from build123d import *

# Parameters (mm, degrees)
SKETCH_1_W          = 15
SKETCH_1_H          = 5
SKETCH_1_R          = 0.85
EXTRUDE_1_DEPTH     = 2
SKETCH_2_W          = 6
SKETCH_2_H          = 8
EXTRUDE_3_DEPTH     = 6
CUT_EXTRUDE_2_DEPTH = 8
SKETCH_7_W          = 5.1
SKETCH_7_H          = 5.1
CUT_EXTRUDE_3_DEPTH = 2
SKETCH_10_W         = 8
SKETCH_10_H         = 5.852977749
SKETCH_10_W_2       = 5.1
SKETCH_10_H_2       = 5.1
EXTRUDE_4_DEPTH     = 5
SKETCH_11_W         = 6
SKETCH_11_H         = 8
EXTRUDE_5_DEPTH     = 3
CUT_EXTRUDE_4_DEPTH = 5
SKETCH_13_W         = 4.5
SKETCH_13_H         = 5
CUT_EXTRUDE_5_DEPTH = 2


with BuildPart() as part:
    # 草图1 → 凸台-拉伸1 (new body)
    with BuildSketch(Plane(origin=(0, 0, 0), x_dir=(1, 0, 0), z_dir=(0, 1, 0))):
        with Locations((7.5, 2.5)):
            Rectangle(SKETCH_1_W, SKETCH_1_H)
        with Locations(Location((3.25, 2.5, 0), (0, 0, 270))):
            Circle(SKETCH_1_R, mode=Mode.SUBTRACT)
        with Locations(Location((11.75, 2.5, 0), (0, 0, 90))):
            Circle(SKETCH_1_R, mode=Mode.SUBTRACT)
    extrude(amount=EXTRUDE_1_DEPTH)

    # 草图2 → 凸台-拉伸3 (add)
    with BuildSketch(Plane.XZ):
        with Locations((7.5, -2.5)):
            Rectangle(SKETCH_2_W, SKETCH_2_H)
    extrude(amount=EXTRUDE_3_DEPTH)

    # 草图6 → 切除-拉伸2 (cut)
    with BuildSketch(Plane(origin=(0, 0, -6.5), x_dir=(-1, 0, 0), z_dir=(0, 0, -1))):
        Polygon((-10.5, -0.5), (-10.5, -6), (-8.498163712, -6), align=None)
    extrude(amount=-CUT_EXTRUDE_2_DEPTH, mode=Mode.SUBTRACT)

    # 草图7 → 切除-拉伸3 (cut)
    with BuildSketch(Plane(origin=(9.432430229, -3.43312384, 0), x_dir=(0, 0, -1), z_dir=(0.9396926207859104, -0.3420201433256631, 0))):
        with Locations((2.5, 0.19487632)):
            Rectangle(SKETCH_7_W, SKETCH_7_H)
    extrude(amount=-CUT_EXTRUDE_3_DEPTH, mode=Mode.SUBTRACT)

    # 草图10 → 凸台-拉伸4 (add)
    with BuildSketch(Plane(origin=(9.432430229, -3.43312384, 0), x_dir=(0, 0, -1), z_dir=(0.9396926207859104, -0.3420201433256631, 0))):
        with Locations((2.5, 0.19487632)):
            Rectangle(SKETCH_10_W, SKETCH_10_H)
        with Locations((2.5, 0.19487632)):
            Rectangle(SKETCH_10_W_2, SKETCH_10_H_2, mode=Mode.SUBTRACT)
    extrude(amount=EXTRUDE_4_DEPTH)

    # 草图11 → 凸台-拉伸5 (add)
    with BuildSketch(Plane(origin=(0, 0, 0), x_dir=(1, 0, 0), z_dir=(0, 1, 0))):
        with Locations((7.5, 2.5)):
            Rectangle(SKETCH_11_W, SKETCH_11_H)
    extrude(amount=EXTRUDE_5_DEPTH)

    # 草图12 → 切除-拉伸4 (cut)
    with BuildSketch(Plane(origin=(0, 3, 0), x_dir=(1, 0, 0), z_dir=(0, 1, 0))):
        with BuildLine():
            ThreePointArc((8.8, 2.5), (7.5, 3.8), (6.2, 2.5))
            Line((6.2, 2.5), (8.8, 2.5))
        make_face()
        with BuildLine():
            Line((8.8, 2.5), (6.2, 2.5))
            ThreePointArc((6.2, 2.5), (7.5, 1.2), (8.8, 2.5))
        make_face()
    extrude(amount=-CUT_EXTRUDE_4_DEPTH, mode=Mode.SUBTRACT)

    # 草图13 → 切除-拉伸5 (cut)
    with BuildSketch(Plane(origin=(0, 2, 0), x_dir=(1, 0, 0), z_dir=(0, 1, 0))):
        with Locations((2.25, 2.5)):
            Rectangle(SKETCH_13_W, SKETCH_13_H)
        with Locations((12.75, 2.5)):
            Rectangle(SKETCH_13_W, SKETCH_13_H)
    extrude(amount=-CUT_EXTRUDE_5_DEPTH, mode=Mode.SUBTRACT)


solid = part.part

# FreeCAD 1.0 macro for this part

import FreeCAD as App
import Part
import Sketcher
from FreeCAD import Vector
Q = App.Units.Quantity


def add_polygon(sketch, points):
    """Adds a closed chain of lines whose ends are joined by coincident constraints."""
    first, n = sketch.GeometryCount, len(points)
    for a, b in zip(points, points[1:] + points[:1]):
        sketch.addGeometry(Part.LineSegment(App.Vector(*a, 0), App.Vector(*b, 0)), False)
    for i in range(n):
        sketch.addConstraint(Sketcher.Constraint("Coincident", first + i, 2, first + (i + 1) % n, 1))

doc = App.newDocument("Part")
params = doc.addObject("Spreadsheet::Sheet", "Params")
for row, (alias, value) in enumerate([
    ("sketch1_diameter", "1.7 mm"),
    ("sketch1_width", "15 mm"),
    ("sketch1_height", "5 mm"),
    ("pad1_length", "2 mm"),
    ("sketch2_width", "6 mm"),
    ("sketch2_height", "8 mm"),
    ("pad2_length", "6 mm"),
    ("sketch3_height", "5.5 mm"),
    ("pocket1_length", "8 mm"),
    ("sketch4_width", "5.1 mm"),
    ("pocket2_length", "2 mm"),
    ("sketch5_width", "8 mm"),
    ("sketch5_width2", "5.1 mm"),
    ("pad3_length", "5 mm"),
    ("sketch6_width", "6 mm"),
    ("sketch6_height", "8 mm"),
    ("pad4_length", "3 mm"),
    ("sketch7_diameter", "2.6 mm"),
    ("pocket3_length", "5 mm"),
    ("sketch8_height", "5 mm"),
    ("sketch8_width", "4.5 mm"),
    ("pocket4_length", "2 mm"),
], start=1):
    params.set(f"A{row}", alias)
    params.set(f"B{row}", "=" + value)
    params.setAlias(f"B{row}", alias)

body = doc.addObject("PartDesign::Body", "Body")

# Sketch on XZ plane
sketch1 = body.newObject("Sketcher::SketchObject", "Sketch")
sketch1.AttachmentSupport = (doc.getObject("XZ_Plane"), [""])
sketch1.MapMode = "FlatFace"
add_polygon(sketch1, [(0, -5), (0, 0), (15, 0), (15, -5)])  # lines 0-3
sketch1.addGeometry(Part.Circle(Vector(3.2, -2.5, 0), Vector(0, 0, 1), 0.8), False)  # 4
sketch1.addGeometry(Part.Circle(Vector(11.8, -2.5, 0), Vector(0, 0, 1), 0.8), False)  # 5
sketch1.addConstraint([
    Sketcher.Constraint("Vertical", 0),
    Sketcher.Constraint("Horizontal", 1),
    Sketcher.Constraint("Vertical", 2),
    Sketcher.Constraint("Horizontal", 3),
    Sketcher.Constraint("Coincident", 0, 2, -1, 1),
    Sketcher.Constraint("Equal", 4, 5),
    Sketcher.Constraint("Horizontal", 4, 3, 5, 3),
    Sketcher.Constraint("Diameter", 4, 1.7),
    Sketcher.Constraint("DistanceX", 1, 1, 1, 2, 15.0),
    Sketcher.Constraint("DistanceY", 0, 1, 0, 2, 5.0),
    Sketcher.Constraint("DistanceY", 4, 3, -1, 1, 2.5),
    Sketcher.Constraint("DistanceX", 4, 3, 5, 3, 8.5),
    Sketcher.Constraint("DistanceX", -1, 1, 4, 3, 3.25),
])
sketch1.setExpression("Constraints[11]", "Params.sketch1_diameter")
sketch1.setExpression("Constraints[12]", "Params.sketch1_width")
sketch1.setExpression("Constraints[13]", "Params.sketch1_height")
pad1 = body.newObject("PartDesign::Pad", "Pad")
pad1.Profile = sketch1
pad1.setExpression("Length", "Params.pad1_length")
pad1.Reversed = True

# Sketch on XZ plane
sketch2 = body.newObject("Sketcher::SketchObject", "Sketch001")
sketch2.AttachmentSupport = (doc.getObject("XZ_Plane"), [""])
sketch2.MapMode = "FlatFace"
add_polygon(sketch2, [(4, 2), (4, -6), (10, -6), (10, 2)])  # lines 0-3
sketch2.addConstraint([
    Sketcher.Constraint("Vertical", 0),
    Sketcher.Constraint("Horizontal", 1),
    Sketcher.Constraint("Vertical", 2),
    Sketcher.Constraint("Horizontal", 3),
    Sketcher.Constraint("DistanceX", 1, 1, 1, 2, 6.0),
    Sketcher.Constraint("DistanceY", 0, 2, 0, 1, 8.0),
    Sketcher.Constraint("DistanceX", -1, 1, 0, 2, 4.5),
    Sketcher.Constraint("DistanceY", 0, 2, -1, 1, 6.5),
])
sketch2.setExpression("Constraints[8]", "Params.sketch2_width")
sketch2.setExpression("Constraints[9]", "Params.sketch2_height")
pad2 = body.newObject("PartDesign::Pad", "Pad001")
pad2.Profile = sketch2
pad2.setExpression("Length", "Params.pad2_length")

# Sketch on XY plane
sketch3 = body.newObject("Sketcher::SketchObject", "Sketch002")
sketch3.AttachmentSupport = (doc.getObject("XY_Plane"), [""])
sketch3.MapMode = "FlatFace"
sketch3.AttachmentOffset = App.Placement(Vector(0, 0, -6.5), App.Rotation())
add_polygon(sketch3, [(10.5, -0.5), (10.5, -6), (8.5, -6)])  # lines 0-2
sketch3.addConstraint([
    Sketcher.Constraint("Vertical", 0),
    Sketcher.Constraint("Horizontal", 1),
    Sketcher.Constraint("Angle", 2, Q("70 deg")),
    Sketcher.Constraint("DistanceY", 0, 2, 0, 1, 5.5),
    Sketcher.Constraint("DistanceY", 0, 2, -1, 1, 6.0),
    Sketcher.Constraint("DistanceX", -1, 1, 0, 2, 10.5),
])
sketch3.setExpression("Constraints[6]", "Params.sketch3_height")
pocket1 = body.newObject("PartDesign::Pocket", "Pocket")
pocket1.Profile = sketch3
pocket1.setExpression("Length", "Params.pocket1_length")
pocket1.Reversed = True

# Sketch on an angled plane
sketch4 = body.newObject("Sketcher::SketchObject", "Sketch003")
sketch4.Placement = App.Placement(Vector(9.43243, -3.433124, 0), App.Rotation(Vector(0, 0, -1), Vector(0.342020143, 0.939692621, 0), Vector(0.939692621, -0.342020143, 0), "ZXY"))
add_polygon(sketch4, [(0, 3), (0, -2), (5, -2), (5, 3)])  # lines 0-3
sketch4.addConstraint([
    Sketcher.Constraint("Vertical", 0),
    Sketcher.Constraint("Horizontal", 1),
    Sketcher.Constraint("Vertical", 2),
    Sketcher.Constraint("Horizontal", 3),
    Sketcher.Constraint("Equal", 3, 0),
    Sketcher.Constraint("DistanceX", 1, 1, 1, 2, 5.1),
    Sketcher.Constraint("DistanceX", 0, 2, -1, 1, 0.05),
    Sketcher.Constraint("DistanceY", 0, 2, -1, 1, 2.355124),
])
sketch4.setExpression("Constraints[9]", "Params.sketch4_width")
pocket2 = body.newObject("PartDesign::Pocket", "Pocket001")
pocket2.Profile = sketch4
pocket2.setExpression("Length", "Params.pocket2_length")

# Sketch on an angled plane
sketch5 = body.newObject("Sketcher::SketchObject", "Sketch004")
sketch5.Placement = App.Placement(Vector(9.43243, -3.433124, 0), App.Rotation(Vector(0, 0, -1), Vector(0.342020143, 0.939692621, 0), Vector(0.939692621, -0.342020143, 0), "ZXY"))
add_polygon(sketch5, [(-2, 3), (-2, -3), (6, -3), (6, 3)])  # lines 0-3
add_polygon(sketch5, [(5, -2), (0, -2), (0, 3), (5, 3)])  # lines 4-7
sketch5.addConstraint([
    Sketcher.Constraint("Vertical", 0),
    Sketcher.Constraint("Horizontal", 1),
    Sketcher.Constraint("Vertical", 2),
    Sketcher.Constraint("Horizontal", 3),
    Sketcher.Constraint("Horizontal", 4),
    Sketcher.Constraint("Vertical", 5),
    Sketcher.Constraint("Horizontal", 6),
    Sketcher.Constraint("Vertical", 7),
    Sketcher.Constraint("Equal", 6, 5),
    Sketcher.Constraint("DistanceX", 1, 1, 1, 2, 8.0),
    Sketcher.Constraint("DistanceX", 4, 2, 4, 1, 5.1),
    Sketcher.Constraint("DistanceX", 0, 2, -1, 1, 1.5),
    Sketcher.Constraint("DistanceX", 4, 2, -1, 1, 0.05),
    Sketcher.Constraint("DistanceY", 0, 2, 0, 1, 5.852978),
    Sketcher.Constraint("DistanceY", 0, 2, 4, 2, 0.376489),
    Sketcher.Constraint("DistanceY", 0, 2, -1, 1, 2.731613),
])
sketch5.setExpression("Constraints[17]", "Params.sketch5_width")
sketch5.setExpression("Constraints[18]", "Params.sketch5_width2")
pad3 = body.newObject("PartDesign::Pad", "Pad002")
pad3.Profile = sketch5
pad3.setExpression("Length", "Params.pad3_length")

# Sketch on XZ plane
sketch6 = body.newObject("Sketcher::SketchObject", "Sketch005")
sketch6.AttachmentSupport = (doc.getObject("XZ_Plane"), [""])
sketch6.MapMode = "FlatFace"
add_polygon(sketch6, [(4, -6), (4, 2), (10, 2), (10, -6)])  # lines 0-3
sketch6.addConstraint([
    Sketcher.Constraint("Vertical", 0),
    Sketcher.Constraint("Horizontal", 1),
    Sketcher.Constraint("Vertical", 2),
    Sketcher.Constraint("Horizontal", 3),
    Sketcher.Constraint("DistanceX", 1, 1, 1, 2, 6.0),
    Sketcher.Constraint("DistanceY", 0, 1, 0, 2, 8.0),
    Sketcher.Constraint("DistanceX", -1, 1, 0, 2, 4.5),
    Sketcher.Constraint("DistanceY", -1, 1, 0, 2, 1.5),
])
sketch6.setExpression("Constraints[8]", "Params.sketch6_width")
sketch6.setExpression("Constraints[9]", "Params.sketch6_height")
pad4 = body.newObject("PartDesign::Pad", "Pad003")
pad4.Profile = sketch6
pad4.setExpression("Length", "Params.pad4_length")
pad4.Reversed = True

# Sketch on XZ plane
sketch7 = body.newObject("Sketcher::SketchObject", "Sketch006")
sketch7.AttachmentSupport = (doc.getObject("XZ_Plane"), [""])
sketch7.MapMode = "FlatFace"
sketch7.AttachmentOffset = App.Placement(Vector(0, 0, -3), App.Rotation())
sketch7.addGeometry(Part.Circle(Vector(7.5, -2.5, 0), Vector(0, 0, 1), 1.3), False)
sketch7.addConstraint([
    Sketcher.Constraint("Diameter", 0, 2.6),
    Sketcher.Constraint("DistanceX", -1, 1, 0, 3, 7.5),
    Sketcher.Constraint("DistanceY", 0, 3, -1, 1, 2.5),
])
sketch7.setExpression("Constraints[0]", "Params.sketch7_diameter")
pocket3 = body.newObject("PartDesign::Pocket", "Pocket002")
pocket3.Profile = sketch7
pocket3.setExpression("Length", "Params.pocket3_length")
pocket3.Reversed = True

# Sketch on XZ plane
sketch8 = body.newObject("Sketcher::SketchObject", "Sketch007")
sketch8.AttachmentSupport = (doc.getObject("XZ_Plane"), [""])
sketch8.MapMode = "FlatFace"
sketch8.AttachmentOffset = App.Placement(Vector(0, 0, -2), App.Rotation())
add_polygon(sketch8, [(0, -5), (0, 0), (4.5, 0), (4.5, -5)])  # lines 0-3
add_polygon(sketch8, [(10.5, -5), (10.5, 0), (15, 0), (15, -5)])  # lines 4-7
sketch8.addConstraint([
    Sketcher.Constraint("Vertical", 0),
    Sketcher.Constraint("Horizontal", 1),
    Sketcher.Constraint("Vertical", 2),
    Sketcher.Constraint("Horizontal", 3),
    Sketcher.Constraint("Vertical", 4),
    Sketcher.Constraint("Horizontal", 5),
    Sketcher.Constraint("Vertical", 6),
    Sketcher.Constraint("Horizontal", 7),
    Sketcher.Constraint("Coincident", 0, 2, -1, 1),
    Sketcher.Constraint("PointOnObject", 4, 2, -1),
    Sketcher.Constraint("Horizontal", 3, 2, 6, 2),
    Sketcher.Constraint("Equal", 3, 5),
    Sketcher.Constraint("DistanceY", 0, 1, 0, 2, 5.0),
    Sketcher.Constraint("DistanceX", 1, 1, 1, 2, 4.5),
    Sketcher.Constraint("DistanceX", -1, 1, 5, 2, 15.0),
])
sketch8.setExpression("Constraints[20]", "Params.sketch8_height")
sketch8.setExpression("Constraints[21]", "Params.sketch8_width")
pocket4 = body.newObject("PartDesign::Pocket", "Pocket003")
pocket4.Profile = sketch8
pocket4.setExpression("Length", "Params.pocket4_length")
pocket4.Reversed = True

doc.recompute()
